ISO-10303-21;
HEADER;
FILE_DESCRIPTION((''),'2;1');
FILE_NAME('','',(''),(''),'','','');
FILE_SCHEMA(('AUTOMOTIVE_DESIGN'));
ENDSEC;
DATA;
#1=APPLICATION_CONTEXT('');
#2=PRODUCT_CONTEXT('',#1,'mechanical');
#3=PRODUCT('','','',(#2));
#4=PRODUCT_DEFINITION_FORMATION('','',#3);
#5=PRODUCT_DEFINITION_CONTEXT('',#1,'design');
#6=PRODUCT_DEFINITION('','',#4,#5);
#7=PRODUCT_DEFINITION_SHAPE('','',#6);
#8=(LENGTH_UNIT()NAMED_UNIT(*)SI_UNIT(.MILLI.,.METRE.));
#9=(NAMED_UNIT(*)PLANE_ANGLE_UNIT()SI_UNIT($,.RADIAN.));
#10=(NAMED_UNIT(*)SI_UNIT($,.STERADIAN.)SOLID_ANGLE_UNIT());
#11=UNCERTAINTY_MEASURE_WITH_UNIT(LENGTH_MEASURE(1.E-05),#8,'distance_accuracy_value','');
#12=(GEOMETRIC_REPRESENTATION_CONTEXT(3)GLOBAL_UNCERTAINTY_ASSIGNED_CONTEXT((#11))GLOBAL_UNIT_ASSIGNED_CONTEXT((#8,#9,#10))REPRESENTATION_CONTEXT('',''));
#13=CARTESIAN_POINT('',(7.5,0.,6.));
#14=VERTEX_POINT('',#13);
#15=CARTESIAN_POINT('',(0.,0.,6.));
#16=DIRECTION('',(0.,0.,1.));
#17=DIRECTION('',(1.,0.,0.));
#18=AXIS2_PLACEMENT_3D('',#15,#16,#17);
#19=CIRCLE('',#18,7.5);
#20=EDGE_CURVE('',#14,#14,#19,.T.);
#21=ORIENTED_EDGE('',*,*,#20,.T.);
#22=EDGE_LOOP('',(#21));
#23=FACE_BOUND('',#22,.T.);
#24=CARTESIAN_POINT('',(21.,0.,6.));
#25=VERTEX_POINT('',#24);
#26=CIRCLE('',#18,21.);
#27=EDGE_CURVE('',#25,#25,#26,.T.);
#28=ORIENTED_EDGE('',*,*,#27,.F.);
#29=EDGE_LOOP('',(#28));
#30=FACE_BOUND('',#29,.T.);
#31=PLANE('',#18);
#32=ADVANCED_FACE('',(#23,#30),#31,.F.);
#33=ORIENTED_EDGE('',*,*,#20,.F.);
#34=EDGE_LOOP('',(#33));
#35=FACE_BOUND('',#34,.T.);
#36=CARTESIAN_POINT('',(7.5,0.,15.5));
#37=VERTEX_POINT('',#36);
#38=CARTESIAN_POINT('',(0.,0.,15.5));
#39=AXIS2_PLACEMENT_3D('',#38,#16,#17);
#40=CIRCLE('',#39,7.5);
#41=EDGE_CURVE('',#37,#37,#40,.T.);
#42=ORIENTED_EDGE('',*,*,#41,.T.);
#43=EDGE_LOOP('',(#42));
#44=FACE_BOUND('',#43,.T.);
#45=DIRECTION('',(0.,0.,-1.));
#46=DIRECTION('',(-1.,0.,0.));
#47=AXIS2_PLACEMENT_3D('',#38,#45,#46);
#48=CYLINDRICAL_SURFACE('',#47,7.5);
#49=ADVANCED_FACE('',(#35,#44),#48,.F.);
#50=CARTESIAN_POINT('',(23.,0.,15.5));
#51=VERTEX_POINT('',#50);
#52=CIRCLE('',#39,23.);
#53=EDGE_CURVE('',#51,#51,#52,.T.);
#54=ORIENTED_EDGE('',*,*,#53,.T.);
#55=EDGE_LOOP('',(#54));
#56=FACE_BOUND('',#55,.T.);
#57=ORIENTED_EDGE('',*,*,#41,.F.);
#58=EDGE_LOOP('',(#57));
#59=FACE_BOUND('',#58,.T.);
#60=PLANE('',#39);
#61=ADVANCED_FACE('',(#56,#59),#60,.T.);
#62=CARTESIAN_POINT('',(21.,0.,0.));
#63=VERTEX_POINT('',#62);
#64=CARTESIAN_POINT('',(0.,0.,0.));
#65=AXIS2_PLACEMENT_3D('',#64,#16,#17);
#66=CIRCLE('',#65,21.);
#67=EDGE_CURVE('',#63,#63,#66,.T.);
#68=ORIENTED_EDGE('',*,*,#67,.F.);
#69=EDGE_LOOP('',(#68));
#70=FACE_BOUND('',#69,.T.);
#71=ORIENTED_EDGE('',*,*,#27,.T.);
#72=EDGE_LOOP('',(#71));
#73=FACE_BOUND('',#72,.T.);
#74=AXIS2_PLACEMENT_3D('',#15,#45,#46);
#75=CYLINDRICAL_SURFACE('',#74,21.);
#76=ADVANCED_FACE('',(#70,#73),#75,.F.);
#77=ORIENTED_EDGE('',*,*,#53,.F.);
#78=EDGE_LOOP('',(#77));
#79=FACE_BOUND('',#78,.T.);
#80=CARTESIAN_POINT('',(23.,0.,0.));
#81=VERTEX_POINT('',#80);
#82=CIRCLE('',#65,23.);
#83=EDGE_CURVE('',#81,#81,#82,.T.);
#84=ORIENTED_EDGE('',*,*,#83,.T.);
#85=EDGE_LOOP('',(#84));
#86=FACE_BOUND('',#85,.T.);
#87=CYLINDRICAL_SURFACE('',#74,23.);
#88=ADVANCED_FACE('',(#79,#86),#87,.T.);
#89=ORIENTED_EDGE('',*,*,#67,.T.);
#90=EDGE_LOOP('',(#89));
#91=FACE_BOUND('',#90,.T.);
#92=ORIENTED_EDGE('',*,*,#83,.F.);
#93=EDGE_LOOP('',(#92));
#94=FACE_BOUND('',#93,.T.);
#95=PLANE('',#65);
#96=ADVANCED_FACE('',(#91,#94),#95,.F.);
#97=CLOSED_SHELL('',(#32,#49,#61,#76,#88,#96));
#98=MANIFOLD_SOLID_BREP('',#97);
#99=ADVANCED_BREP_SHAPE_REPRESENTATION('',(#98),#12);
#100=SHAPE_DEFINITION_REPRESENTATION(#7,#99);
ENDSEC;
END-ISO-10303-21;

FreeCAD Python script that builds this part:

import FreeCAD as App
import Part
import Sketcher

V = App.Vector
Q = App.Units.Quantity

doc = App.newDocument("Part")
body = doc.addObject("PartDesign::Body", "Body")

sketch1 = body.newObject("Sketcher::SketchObject", "Sketch")
sketch1.AttachmentSupport = (doc.getObject("XY_Plane"), [""])
sketch1.MapMode = "FlatFace"
sketch1.addGeometry(Part.Circle(V(0, 0, 0), V(0, 0, 1), 23), False)
sketch1.addGeometry(Part.Circle(V(0, 0, 0), V(0, 0, 1), 21), False)
sketch1.addConstraint(Sketcher.Constraint("Coincident", 0, 3, -1, 1))
sketch1.addConstraint(Sketcher.Constraint("Coincident", 1, 3, -1, 1))
sketch1.addConstraint(Sketcher.Constraint("Diameter", 0, Q("46 mm")))
sketch1.addConstraint(Sketcher.Constraint("Diameter", 1, Q("42 mm")))
pad1 = body.newObject("PartDesign::Pad", "Pad")
pad1.Profile = sketch1
pad1.Length = 6

sketch2 = body.newObject("Sketcher::SketchObject", "Sketch001")
sketch2.AttachmentSupport = (doc.getObject("XY_Plane"), [""])
sketch2.MapMode = "FlatFace"
sketch2.AttachmentOffset = App.Placement(V(0, 0, 6), App.Rotation())
sketch2.addGeometry(Part.Circle(V(0, 0, 0), V(0, 0, 1), 23), False)
sketch2.addGeometry(Part.Circle(V(0, 0, 0), V(0, 0, 1), 7.5), False)
sketch2.addConstraint(Sketcher.Constraint("Coincident", 0, 3, -1, 1))
sketch2.addConstraint(Sketcher.Constraint("Coincident", 1, 3, -1, 1))
sketch2.addConstraint(Sketcher.Constraint("Diameter", 0, Q("46 mm")))
sketch2.addConstraint(Sketcher.Constraint("Diameter", 1, Q("15 mm")))
pad2 = body.newObject("PartDesign::Pad", "Pad001")
pad2.Profile = sketch2
pad2.Length = 9.5

doc.recompute()
